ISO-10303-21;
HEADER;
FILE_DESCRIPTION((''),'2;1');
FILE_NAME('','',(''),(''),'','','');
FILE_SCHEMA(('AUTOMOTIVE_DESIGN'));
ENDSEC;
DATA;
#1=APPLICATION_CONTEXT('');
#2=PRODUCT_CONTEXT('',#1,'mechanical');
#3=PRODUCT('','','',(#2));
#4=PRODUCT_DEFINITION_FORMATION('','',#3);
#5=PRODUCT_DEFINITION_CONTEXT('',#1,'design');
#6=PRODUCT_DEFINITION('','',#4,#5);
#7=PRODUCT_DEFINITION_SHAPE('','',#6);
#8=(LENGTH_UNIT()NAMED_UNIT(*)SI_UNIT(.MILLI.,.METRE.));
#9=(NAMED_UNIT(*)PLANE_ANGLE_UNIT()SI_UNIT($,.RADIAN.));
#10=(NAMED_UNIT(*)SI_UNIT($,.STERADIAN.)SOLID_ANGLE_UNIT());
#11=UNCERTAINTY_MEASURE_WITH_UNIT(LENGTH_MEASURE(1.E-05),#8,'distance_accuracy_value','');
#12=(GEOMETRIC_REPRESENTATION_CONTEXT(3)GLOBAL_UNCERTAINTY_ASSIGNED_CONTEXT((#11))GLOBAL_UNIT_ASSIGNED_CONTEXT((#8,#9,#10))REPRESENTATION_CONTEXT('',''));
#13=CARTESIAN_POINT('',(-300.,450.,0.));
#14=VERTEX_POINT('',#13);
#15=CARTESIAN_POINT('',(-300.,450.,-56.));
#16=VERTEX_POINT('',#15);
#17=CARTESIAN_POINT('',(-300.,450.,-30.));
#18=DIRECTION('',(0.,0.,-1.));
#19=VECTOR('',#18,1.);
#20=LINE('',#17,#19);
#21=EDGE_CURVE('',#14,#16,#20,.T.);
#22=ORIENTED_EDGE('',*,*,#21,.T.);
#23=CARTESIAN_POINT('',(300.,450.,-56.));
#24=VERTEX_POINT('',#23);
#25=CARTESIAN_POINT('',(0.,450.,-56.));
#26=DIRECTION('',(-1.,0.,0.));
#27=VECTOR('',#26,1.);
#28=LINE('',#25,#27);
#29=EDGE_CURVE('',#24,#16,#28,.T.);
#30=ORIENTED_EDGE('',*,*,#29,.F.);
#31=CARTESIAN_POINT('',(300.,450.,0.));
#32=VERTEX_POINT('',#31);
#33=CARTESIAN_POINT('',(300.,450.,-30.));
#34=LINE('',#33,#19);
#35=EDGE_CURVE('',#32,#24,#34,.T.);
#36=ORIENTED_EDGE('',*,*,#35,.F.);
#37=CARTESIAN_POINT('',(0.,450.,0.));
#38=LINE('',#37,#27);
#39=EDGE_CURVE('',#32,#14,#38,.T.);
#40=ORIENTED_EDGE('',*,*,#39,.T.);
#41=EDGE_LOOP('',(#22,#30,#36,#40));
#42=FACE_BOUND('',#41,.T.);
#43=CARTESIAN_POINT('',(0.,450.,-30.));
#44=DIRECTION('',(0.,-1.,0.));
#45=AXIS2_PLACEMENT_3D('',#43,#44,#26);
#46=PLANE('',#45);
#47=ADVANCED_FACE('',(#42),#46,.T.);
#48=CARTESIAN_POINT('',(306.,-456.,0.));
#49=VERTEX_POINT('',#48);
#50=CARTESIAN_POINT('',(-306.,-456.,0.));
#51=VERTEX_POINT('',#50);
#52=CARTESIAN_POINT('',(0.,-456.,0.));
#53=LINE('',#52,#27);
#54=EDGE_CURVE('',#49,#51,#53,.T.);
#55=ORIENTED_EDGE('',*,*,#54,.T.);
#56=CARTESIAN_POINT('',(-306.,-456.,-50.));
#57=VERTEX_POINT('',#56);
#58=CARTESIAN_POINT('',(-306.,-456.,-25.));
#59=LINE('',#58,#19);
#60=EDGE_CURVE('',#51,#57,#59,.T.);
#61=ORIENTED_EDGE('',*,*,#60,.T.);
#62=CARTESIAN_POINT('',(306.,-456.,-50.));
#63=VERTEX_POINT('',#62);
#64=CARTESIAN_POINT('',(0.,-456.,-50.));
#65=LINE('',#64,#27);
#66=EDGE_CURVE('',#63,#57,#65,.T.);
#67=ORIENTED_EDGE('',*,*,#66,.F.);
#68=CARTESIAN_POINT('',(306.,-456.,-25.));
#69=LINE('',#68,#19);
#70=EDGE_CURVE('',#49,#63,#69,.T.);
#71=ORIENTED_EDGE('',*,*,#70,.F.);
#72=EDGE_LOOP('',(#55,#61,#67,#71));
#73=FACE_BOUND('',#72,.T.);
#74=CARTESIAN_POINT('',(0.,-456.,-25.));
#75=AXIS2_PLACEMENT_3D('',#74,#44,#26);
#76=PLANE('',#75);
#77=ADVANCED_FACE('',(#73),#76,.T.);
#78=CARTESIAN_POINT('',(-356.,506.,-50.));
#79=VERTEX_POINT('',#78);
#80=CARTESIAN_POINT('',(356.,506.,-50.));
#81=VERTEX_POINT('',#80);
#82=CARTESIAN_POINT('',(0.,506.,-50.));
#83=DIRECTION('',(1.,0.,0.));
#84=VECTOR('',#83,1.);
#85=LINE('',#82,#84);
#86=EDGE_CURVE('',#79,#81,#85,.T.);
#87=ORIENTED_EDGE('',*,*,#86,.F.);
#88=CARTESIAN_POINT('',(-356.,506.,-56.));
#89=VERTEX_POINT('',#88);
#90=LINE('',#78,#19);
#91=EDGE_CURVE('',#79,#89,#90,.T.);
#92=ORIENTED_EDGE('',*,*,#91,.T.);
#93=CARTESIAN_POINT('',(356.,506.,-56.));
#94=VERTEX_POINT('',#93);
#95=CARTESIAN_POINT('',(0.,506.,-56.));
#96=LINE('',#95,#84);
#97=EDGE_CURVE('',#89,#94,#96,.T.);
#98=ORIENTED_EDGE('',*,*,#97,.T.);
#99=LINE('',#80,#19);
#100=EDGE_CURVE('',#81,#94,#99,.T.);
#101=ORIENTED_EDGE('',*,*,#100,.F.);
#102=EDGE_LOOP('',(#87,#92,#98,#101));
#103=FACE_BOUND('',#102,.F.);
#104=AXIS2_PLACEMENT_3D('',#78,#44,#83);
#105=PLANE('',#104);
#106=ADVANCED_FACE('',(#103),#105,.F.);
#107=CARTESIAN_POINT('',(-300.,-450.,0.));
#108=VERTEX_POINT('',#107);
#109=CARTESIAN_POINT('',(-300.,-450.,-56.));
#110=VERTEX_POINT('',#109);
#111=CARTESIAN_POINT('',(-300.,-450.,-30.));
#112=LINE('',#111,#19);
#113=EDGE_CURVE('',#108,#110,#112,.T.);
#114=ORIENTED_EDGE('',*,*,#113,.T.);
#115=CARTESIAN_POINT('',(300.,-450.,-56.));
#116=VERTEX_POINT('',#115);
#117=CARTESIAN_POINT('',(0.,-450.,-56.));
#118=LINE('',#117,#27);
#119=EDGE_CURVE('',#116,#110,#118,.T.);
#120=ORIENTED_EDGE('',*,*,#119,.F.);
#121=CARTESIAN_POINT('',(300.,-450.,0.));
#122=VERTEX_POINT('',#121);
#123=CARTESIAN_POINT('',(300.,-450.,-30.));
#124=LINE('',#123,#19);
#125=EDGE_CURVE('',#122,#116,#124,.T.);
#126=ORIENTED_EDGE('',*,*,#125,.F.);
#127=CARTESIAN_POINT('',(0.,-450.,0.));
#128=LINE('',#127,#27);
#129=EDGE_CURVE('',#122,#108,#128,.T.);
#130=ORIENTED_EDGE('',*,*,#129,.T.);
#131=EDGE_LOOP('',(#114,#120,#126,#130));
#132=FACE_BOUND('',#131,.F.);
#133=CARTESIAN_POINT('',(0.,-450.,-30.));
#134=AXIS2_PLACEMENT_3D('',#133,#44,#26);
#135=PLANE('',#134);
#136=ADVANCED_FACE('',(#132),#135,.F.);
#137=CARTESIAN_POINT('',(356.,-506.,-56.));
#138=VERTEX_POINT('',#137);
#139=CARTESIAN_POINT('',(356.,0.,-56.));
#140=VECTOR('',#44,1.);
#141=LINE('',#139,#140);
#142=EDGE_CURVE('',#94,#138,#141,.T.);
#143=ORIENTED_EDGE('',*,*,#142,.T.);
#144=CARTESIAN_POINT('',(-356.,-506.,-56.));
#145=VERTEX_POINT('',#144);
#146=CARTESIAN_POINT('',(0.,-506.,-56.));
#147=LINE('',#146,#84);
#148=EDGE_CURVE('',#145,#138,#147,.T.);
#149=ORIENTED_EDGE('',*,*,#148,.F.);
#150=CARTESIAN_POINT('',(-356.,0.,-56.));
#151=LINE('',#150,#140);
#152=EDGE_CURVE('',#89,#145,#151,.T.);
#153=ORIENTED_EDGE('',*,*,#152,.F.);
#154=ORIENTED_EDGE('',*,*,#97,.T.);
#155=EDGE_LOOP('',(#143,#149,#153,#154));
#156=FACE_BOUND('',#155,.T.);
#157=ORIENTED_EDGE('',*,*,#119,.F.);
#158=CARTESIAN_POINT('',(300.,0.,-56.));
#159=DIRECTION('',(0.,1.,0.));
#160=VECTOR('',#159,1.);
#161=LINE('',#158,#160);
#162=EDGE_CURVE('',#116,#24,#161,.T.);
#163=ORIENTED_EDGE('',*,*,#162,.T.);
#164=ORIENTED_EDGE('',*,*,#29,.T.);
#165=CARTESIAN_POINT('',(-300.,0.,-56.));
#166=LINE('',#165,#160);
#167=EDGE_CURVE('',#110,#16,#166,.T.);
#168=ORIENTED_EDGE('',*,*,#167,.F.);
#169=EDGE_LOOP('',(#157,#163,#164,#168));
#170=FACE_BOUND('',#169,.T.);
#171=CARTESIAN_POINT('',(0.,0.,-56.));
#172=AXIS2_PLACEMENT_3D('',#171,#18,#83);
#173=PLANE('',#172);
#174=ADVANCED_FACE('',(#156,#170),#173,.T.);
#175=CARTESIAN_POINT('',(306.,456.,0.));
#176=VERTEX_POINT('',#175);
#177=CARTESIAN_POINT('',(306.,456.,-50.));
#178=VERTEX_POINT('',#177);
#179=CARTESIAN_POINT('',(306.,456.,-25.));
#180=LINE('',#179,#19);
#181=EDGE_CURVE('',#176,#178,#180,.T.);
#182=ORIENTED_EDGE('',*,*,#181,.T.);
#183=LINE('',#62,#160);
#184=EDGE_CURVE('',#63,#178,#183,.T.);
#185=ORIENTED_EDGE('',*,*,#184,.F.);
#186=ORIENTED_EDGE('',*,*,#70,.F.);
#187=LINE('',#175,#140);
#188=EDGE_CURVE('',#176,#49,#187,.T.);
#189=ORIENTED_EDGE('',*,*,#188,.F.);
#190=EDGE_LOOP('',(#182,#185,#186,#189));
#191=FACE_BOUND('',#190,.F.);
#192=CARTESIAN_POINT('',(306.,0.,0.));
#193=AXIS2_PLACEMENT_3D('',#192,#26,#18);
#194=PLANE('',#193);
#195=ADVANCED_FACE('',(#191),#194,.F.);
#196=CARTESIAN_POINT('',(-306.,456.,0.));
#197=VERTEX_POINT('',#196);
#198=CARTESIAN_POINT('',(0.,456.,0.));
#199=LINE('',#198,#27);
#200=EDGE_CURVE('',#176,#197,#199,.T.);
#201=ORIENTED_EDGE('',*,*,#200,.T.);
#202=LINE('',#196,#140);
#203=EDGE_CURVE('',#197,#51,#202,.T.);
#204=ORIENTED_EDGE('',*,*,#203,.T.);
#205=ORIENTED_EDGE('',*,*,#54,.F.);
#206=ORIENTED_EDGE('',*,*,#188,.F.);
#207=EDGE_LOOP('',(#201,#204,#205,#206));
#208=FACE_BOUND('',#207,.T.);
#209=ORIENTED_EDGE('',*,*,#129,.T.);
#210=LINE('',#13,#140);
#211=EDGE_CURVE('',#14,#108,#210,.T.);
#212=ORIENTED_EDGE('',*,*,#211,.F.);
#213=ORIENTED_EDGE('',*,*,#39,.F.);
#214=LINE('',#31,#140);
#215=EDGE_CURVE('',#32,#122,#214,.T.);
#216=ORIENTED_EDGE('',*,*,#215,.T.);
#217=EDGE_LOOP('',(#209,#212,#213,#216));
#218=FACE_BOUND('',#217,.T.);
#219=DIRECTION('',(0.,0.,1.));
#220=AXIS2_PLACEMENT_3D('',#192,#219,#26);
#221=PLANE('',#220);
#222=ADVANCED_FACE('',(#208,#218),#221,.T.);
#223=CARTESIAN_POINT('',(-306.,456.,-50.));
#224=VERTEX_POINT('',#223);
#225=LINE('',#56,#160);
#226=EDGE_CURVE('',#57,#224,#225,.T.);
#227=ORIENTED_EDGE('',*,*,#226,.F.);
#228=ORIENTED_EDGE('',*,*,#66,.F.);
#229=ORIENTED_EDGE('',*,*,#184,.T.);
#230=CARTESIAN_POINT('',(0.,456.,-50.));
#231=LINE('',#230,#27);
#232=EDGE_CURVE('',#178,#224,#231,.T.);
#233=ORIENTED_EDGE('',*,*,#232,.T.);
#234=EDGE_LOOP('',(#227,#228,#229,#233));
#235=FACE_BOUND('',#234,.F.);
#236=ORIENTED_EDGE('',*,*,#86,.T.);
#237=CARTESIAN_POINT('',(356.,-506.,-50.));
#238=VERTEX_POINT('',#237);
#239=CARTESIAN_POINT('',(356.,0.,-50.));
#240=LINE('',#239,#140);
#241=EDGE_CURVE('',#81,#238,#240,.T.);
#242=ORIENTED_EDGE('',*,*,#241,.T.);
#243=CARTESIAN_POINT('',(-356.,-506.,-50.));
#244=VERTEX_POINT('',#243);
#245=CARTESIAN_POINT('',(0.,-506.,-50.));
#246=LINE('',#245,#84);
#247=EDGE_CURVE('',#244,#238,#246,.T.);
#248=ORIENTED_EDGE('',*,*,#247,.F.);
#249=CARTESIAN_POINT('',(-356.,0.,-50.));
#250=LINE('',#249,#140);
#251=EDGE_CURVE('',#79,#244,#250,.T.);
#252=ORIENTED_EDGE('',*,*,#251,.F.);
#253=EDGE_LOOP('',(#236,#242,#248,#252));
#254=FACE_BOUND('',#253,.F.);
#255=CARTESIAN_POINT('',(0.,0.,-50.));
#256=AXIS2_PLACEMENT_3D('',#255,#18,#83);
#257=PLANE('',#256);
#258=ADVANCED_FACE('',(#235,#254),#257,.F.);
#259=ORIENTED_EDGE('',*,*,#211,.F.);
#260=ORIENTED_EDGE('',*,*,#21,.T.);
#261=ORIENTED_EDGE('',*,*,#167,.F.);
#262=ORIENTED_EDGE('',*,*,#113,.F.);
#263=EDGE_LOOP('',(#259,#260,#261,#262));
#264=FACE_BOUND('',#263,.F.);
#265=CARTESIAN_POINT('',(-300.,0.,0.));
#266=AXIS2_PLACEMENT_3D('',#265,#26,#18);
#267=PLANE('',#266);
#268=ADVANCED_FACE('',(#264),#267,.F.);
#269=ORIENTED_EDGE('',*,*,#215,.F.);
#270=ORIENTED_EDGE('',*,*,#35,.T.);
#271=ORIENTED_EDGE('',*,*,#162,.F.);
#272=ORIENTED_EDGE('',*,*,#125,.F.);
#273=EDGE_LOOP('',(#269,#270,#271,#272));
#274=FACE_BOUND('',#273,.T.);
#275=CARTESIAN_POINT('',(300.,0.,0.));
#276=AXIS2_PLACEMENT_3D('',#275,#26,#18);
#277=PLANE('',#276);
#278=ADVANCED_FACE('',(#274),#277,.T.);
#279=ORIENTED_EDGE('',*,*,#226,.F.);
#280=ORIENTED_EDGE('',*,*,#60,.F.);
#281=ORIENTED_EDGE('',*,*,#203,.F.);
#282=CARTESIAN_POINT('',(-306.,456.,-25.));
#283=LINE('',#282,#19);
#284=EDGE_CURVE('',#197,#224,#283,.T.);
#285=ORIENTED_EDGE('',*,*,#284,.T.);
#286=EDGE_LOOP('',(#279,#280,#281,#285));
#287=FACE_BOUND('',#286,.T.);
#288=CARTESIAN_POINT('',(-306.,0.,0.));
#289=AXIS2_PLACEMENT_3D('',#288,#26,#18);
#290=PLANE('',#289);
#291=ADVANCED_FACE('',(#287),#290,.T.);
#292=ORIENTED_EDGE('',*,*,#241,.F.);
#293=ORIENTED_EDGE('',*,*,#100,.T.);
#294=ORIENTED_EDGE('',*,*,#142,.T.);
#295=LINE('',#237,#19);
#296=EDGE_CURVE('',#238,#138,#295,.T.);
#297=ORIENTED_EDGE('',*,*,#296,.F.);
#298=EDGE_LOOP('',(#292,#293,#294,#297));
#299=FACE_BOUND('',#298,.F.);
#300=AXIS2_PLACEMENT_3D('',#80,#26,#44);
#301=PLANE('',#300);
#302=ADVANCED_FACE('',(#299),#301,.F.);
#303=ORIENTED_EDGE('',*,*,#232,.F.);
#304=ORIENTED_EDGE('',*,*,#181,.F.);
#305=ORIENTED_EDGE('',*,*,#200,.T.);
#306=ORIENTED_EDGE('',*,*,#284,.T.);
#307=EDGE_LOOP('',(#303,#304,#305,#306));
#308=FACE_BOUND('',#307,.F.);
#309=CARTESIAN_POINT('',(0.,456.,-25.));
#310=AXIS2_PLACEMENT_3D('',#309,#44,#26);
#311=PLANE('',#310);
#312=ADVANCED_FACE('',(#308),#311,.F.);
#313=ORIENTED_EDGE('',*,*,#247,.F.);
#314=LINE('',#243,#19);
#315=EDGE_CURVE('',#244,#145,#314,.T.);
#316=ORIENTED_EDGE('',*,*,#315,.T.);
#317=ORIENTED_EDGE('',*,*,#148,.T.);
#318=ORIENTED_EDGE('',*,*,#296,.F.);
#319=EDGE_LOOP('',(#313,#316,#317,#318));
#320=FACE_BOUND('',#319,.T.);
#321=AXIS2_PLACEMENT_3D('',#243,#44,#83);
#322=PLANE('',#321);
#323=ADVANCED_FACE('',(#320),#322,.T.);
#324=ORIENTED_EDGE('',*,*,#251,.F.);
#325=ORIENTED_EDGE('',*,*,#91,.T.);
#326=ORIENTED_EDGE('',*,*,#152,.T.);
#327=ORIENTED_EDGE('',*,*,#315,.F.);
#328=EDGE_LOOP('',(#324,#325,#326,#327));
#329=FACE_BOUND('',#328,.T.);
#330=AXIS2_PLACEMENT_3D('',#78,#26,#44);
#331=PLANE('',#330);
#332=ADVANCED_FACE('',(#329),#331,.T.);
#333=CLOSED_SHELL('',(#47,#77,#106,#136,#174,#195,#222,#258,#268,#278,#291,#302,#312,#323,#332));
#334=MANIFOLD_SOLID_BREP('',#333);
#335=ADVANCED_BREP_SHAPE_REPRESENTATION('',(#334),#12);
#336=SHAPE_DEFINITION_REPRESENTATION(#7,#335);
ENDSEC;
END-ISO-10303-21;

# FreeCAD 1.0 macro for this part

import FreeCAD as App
import Part
import Sketcher
Q = App.Units.Quantity

doc = App.newDocument("Part")
body = doc.addObject("PartDesign::Body", "Body")

# Sketch on XZ plane
sketch1 = body.newObject("Sketcher::SketchObject", "Sketch")
sketch1.AttachmentSupport = (doc.getObject("XZ_Plane"), [""])
sketch1.MapMode = "FlatFace"
sketch1.addGeometry([
    Part.LineSegment(App.Vector(-300, 60, 0), App.Vector(-300, 0, 0)),
    Part.LineSegment(App.Vector(-300, 0, 0), App.Vector(300, 0, 0)),
    Part.LineSegment(App.Vector(300, 0, 0), App.Vector(300, 60, 0)),
    Part.LineSegment(App.Vector(300, 60, 0), App.Vector(-300, 60, 0)),
], False)
sketch1.addConstraint([
    Sketcher.Constraint("Coincident", 0, 2, 1, 1),
    Sketcher.Constraint("Coincident", 1, 2, 2, 1),
    Sketcher.Constraint("Coincident", 2, 2, 3, 1),
    Sketcher.Constraint("Coincident", 3, 2, 0, 1),
    Sketcher.Constraint("Vertical", 0),
    Sketcher.Constraint("Horizontal", 1),
    Sketcher.Constraint("Vertical", 2),
    Sketcher.Constraint("Horizontal", 3),
    Sketcher.Constraint("Symmetric", 0, 2, 1, 2, -1, 1),
    Sketcher.Constraint("DistanceX", 1, 1, 1, 2, Q("600 mm")),
    Sketcher.Constraint("DistanceY", 0, 2, 0, 1, Q("60 mm")),
])
pad1 = body.newObject("PartDesign::Pad", "Pad")
pad1.Profile = sketch1
pad1.Length = 900
pad1.Midplane = True
body2 = doc.addObject("PartDesign::Body", "Body001")

# Sketch on XZ plane
sketch2 = body2.newObject("Sketcher::SketchObject", "Sketch001")
sketch2.AttachmentSupport = (doc.getObject("XZ_Plane001"), [""])
sketch2.MapMode = "FlatFace"
sketch2.addGeometry([
    Part.LineSegment(App.Vector(-306, 50, 0), App.Vector(-306, 0, 0)),
    Part.LineSegment(App.Vector(-306, 0, 0), App.Vector(306, 0, 0)),
    Part.LineSegment(App.Vector(306, 0, 0), App.Vector(306, 50, 0)),
    Part.LineSegment(App.Vector(306, 50, 0), App.Vector(-306, 50, 0)),
], False)
sketch2.addConstraint([
    Sketcher.Constraint("Coincident", 0, 2, 1, 1),
    Sketcher.Constraint("Coincident", 1, 2, 2, 1),
    Sketcher.Constraint("Coincident", 2, 2, 3, 1),
    Sketcher.Constraint("Coincident", 3, 2, 0, 1),
    Sketcher.Constraint("Vertical", 0),
    Sketcher.Constraint("Horizontal", 1),
    Sketcher.Constraint("Vertical", 2),
    Sketcher.Constraint("Horizontal", 3),
    Sketcher.Constraint("Symmetric", 0, 2, 1, 2, -1, 1),
    Sketcher.Constraint("DistanceX", 1, 1, 1, 2, Q("612 mm")),
    Sketcher.Constraint("DistanceY", 0, 2, 0, 1, Q("50 mm")),
])
pad2 = body2.newObject("PartDesign::Pad", "Pad001")
pad2.Profile = sketch2
pad2.Length = 912
pad2.Midplane = True

# Sketch on XY plane
sketch3 = body2.newObject("Sketcher::SketchObject", "Sketch002")
sketch3.AttachmentSupport = (doc.getObject("XY_Plane001"), [""])
sketch3.MapMode = "FlatFace"
sketch3.AttachmentOffset = App.Placement(App.Vector(0, 0, 50), App.Rotation())
sketch3.addGeometry([
    Part.LineSegment(App.Vector(356, -506, 0), App.Vector(356, 506, 0)),
    Part.LineSegment(App.Vector(356, 506, 0), App.Vector(-356, 506, 0)),
    Part.LineSegment(App.Vector(-356, 506, 0), App.Vector(-356, -506, 0)),
    Part.LineSegment(App.Vector(-356, -506, 0), App.Vector(356, -506, 0)),
], False)
sketch3.addConstraint([
    Sketcher.Constraint("Coincident", 0, 2, 1, 1),
    Sketcher.Constraint("Coincident", 1, 2, 2, 1),
    Sketcher.Constraint("Coincident", 2, 2, 3, 1),
    Sketcher.Constraint("Coincident", 3, 2, 0, 1),
    Sketcher.Constraint("Vertical", 0),
    Sketcher.Constraint("Horizontal", 1),
    Sketcher.Constraint("Vertical", 2),
    Sketcher.Constraint("Horizontal", 3),
    Sketcher.Constraint("Symmetric", 0, 2, 2, 2, -1, 1),
    Sketcher.Constraint("DistanceX", 1, 2, 1, 1, Q("712 mm")),
    Sketcher.Constraint("DistanceY", 0, 1, 0, 2, Q("1012 mm")),
])
pad3 = body2.newObject("PartDesign::Pad", "Pad002")
pad3.Profile = sketch3
pad3.Length = 6
doc.recompute()

boolean = body2.newObject("PartDesign::Boolean", "Boolean")
boolean.Type = "Cut"
boolean.addObjects([body])
body3 = doc.addObject("PartDesign::Body", "Body002")
doc.recompute()

body2.Placement = App.Placement(App.Vector(0, 0, 0), App.Rotation(App.Vector(0, 1, 0), 180))
boolean2 = body3.newObject("PartDesign::Boolean", "Boolean001")
boolean2.Type = "Fuse"
boolean2.addObjects([body2])

doc.recompute()
